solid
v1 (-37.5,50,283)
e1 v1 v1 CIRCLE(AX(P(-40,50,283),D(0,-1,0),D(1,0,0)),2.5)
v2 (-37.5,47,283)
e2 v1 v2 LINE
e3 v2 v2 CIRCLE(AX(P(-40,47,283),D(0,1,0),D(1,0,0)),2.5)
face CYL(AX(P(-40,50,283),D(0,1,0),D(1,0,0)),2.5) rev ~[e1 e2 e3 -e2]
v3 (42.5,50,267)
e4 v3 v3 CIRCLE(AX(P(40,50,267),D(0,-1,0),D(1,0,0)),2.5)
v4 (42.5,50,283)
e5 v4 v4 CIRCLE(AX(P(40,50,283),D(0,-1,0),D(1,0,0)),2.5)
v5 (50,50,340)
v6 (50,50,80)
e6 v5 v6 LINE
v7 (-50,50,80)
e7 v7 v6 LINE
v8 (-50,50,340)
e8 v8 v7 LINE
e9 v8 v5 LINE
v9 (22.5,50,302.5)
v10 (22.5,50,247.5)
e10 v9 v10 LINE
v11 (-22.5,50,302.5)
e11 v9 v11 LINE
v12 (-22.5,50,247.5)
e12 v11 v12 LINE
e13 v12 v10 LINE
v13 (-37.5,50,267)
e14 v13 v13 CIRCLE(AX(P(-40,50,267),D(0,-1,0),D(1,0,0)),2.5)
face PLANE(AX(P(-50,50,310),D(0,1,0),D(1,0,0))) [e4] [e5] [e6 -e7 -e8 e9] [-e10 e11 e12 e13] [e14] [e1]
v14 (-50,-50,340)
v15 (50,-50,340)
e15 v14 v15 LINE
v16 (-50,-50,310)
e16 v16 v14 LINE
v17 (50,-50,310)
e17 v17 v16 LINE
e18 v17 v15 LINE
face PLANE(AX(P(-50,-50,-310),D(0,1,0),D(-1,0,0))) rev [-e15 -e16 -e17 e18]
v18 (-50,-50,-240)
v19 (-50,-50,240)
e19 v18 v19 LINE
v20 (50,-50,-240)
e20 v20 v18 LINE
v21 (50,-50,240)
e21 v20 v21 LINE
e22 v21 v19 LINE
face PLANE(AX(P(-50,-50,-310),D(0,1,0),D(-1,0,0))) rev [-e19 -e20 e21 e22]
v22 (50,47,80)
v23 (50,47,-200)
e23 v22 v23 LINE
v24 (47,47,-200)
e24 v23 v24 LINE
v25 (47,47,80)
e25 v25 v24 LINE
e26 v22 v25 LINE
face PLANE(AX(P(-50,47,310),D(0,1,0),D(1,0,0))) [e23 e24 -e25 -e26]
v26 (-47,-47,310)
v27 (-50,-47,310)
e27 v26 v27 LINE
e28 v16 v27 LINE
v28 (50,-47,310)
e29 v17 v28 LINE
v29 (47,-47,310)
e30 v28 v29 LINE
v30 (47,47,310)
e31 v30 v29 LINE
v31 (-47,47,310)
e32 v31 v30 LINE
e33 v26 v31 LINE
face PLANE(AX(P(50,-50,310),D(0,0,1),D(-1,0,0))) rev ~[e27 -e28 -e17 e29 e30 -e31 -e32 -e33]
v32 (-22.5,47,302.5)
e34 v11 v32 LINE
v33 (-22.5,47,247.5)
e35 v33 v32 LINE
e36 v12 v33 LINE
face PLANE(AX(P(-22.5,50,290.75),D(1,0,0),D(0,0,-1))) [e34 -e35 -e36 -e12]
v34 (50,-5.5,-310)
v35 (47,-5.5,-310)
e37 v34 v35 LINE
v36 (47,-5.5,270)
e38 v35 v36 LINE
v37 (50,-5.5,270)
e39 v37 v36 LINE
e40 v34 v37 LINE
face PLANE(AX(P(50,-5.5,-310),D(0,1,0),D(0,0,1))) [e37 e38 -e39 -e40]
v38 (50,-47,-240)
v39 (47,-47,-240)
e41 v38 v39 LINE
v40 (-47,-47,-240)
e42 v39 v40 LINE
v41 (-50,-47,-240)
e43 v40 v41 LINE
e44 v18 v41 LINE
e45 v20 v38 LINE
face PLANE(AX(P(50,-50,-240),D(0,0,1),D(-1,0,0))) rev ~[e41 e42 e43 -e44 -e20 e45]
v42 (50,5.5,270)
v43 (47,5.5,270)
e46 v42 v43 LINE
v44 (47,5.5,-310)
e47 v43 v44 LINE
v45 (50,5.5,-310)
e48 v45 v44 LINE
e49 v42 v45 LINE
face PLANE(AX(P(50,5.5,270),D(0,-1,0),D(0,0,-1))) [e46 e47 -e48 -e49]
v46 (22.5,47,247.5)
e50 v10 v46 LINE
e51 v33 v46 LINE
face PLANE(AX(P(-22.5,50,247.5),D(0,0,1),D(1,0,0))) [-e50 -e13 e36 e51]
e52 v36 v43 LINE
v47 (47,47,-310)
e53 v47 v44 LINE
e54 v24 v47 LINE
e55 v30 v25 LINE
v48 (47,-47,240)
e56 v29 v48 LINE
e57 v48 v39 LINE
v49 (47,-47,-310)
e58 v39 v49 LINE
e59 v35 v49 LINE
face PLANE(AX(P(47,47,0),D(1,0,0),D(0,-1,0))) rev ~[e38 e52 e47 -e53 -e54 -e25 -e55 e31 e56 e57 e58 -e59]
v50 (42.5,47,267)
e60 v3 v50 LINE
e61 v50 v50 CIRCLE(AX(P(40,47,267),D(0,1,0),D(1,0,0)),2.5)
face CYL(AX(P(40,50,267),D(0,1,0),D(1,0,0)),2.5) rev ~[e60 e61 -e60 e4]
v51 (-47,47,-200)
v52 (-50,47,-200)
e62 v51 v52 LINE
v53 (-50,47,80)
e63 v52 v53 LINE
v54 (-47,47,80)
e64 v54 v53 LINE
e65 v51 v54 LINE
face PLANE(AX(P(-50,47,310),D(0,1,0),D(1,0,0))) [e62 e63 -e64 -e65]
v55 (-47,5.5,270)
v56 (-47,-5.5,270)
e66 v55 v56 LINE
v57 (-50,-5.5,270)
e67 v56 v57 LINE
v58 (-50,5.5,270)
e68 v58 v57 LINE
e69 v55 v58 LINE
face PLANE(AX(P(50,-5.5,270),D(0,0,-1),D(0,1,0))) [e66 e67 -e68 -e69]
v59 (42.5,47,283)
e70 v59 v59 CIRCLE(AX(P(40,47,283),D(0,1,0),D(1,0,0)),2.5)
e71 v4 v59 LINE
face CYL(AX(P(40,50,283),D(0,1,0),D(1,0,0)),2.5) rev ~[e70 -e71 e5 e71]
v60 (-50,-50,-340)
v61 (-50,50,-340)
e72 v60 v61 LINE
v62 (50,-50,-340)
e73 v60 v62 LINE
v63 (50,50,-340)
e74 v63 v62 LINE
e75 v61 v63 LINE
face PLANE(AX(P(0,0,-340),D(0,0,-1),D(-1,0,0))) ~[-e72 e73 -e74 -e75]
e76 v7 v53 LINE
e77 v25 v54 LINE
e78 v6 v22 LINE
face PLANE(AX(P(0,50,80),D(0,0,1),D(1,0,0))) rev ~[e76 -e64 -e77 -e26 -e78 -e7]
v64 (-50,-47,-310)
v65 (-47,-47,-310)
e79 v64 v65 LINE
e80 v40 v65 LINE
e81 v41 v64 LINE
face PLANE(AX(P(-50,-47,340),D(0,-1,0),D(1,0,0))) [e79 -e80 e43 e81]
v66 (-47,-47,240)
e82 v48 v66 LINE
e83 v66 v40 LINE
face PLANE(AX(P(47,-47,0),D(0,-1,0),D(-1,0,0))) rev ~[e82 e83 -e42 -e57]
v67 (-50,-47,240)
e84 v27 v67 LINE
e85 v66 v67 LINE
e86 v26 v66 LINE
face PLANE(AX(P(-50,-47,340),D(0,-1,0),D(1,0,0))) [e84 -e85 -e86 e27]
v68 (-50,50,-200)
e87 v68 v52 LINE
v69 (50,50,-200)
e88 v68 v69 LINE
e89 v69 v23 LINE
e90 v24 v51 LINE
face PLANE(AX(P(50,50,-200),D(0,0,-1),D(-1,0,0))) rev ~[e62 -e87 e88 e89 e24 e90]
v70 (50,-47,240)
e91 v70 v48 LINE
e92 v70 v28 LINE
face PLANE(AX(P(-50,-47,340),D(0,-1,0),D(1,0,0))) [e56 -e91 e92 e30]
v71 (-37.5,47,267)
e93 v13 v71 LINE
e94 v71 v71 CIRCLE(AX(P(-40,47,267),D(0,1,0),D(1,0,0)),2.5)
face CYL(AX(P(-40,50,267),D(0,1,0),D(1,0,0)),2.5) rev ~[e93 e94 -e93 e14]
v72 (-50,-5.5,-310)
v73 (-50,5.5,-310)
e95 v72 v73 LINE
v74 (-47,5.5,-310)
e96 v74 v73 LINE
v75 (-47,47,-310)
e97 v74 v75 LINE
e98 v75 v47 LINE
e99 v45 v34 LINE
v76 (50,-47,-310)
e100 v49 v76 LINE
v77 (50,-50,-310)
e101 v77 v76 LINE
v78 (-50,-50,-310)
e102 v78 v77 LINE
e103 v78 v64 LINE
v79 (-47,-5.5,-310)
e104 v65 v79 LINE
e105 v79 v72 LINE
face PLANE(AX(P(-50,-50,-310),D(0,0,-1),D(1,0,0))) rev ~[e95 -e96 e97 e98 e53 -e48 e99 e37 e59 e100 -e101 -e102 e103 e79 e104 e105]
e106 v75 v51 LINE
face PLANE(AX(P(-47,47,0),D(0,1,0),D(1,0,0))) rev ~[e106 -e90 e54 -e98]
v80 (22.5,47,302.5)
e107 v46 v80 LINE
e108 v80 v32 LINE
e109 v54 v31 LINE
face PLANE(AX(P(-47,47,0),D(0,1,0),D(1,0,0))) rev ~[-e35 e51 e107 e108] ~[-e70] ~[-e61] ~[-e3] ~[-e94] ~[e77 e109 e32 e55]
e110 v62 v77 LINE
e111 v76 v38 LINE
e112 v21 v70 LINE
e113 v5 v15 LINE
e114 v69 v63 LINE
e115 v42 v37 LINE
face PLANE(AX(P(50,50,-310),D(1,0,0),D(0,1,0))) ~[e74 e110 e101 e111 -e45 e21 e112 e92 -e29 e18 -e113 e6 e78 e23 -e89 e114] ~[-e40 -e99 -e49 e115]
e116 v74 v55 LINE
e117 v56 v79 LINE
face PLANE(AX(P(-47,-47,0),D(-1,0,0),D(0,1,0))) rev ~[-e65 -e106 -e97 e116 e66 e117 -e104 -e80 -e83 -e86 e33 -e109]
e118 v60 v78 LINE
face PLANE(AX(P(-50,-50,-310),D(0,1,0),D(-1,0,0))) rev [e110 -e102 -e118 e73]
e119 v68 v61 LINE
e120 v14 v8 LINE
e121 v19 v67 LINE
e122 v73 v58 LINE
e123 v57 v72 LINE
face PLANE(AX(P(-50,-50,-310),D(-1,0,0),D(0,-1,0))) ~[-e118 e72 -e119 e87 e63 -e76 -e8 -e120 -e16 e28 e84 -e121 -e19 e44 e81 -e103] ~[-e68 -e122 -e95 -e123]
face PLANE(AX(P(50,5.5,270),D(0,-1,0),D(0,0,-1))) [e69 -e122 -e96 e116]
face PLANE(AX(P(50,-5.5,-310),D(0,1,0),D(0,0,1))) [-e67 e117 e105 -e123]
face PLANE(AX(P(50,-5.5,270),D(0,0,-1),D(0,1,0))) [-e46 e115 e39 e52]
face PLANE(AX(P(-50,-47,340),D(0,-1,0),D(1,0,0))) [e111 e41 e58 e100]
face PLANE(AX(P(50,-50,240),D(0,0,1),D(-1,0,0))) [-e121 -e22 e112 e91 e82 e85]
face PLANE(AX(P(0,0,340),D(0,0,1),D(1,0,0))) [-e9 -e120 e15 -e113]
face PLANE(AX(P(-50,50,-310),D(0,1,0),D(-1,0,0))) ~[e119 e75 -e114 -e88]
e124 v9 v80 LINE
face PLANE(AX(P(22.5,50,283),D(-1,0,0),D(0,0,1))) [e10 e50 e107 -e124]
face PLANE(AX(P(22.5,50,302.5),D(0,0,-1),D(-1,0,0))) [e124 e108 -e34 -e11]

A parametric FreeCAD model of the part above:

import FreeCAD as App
import Part
import Sketcher
Q = App.Units.Quantity

doc = App.newDocument("Part")
body = doc.addObject("PartDesign::Body", "Body")

sketch1 = doc.addObject("Sketcher::SketchObject", "Sketch")
body.addObject(sketch1)
sketch1.AttachmentSupport = (doc.XY_Plane, [""])
sketch1.MapMode = "FlatFace"
sketch1.addGeometry([
    Part.LineSegment(App.Vector(50, 50, 0), App.Vector(-50, 50, 0)),
    Part.LineSegment(App.Vector(-50, 50, 0), App.Vector(-50, -50, 0)),
    Part.LineSegment(App.Vector(-50, -50, 0), App.Vector(50, -50, 0)),
    Part.LineSegment(App.Vector(50, -50, 0), App.Vector(50, 50, 0)),
    Part.LineSegment(App.Vector(-47, -47, 0), App.Vector(-47, 47, 0)),
    Part.LineSegment(App.Vector(-47, 47, 0), App.Vector(47, 47, 0)),
    Part.LineSegment(App.Vector(47, 47, 0), App.Vector(47, -47, 0)),
    Part.LineSegment(App.Vector(47, -47, 0), App.Vector(-47, -47, 0)),
], False)
sketch1.addConstraint([
    Sketcher.Constraint("Coincident", 0, 2, 1, 1),
    Sketcher.Constraint("Coincident", 1, 2, 2, 1),
    Sketcher.Constraint("Coincident", 2, 2, 3, 1),
    Sketcher.Constraint("Coincident", 3, 2, 0, 1),
    Sketcher.Constraint("Coincident", 4, 2, 5, 1),
    Sketcher.Constraint("Coincident", 5, 2, 6, 1),
    Sketcher.Constraint("Coincident", 6, 2, 7, 1),
    Sketcher.Constraint("Coincident", 7, 2, 4, 1),
    Sketcher.Constraint("Horizontal", 0),
    Sketcher.Constraint("Vertical", 1),
    Sketcher.Constraint("Horizontal", 2),
    Sketcher.Constraint("Vertical", 3),
    Sketcher.Constraint("Vertical", 4),
    Sketcher.Constraint("Horizontal", 5),
    Sketcher.Constraint("Vertical", 6),
    Sketcher.Constraint("Horizontal", 7),
    Sketcher.Constraint("Symmetric", 0, 2, 2, 2, -1, 1),
    Sketcher.Constraint("Symmetric", 4, 2, 6, 2, -1, 1),
    Sketcher.Constraint("Equal", 2, 1),
    Sketcher.Constraint("Equal", 7, 4),
    Sketcher.Constraint("DistanceX", 0, 2, 0, 1, Q("100 mm")),
    Sketcher.Constraint("DistanceX", 5, 1, 5, 2, Q("94 mm")),
])
pad1 = doc.addObject("PartDesign::Pad", "Pad")
body.addObject(pad1)
pad1.Profile = sketch1
pad1.Length = 620
pad1.Midplane = True

sketch2 = doc.addObject("Sketcher::SketchObject", "Sketch001")
body.addObject(sketch2)
sketch2.AttachmentSupport = (doc.YZ_Plane, [""])
sketch2.MapMode = "FlatFace"
sketch2.AttachmentOffset = App.Placement(App.Vector(0, 0, 50), App.Rotation())
sketch2.addGeometry([
    Part.LineSegment(App.Vector(-6, -310, 0), App.Vector(6, -310, 0)),
    Part.LineSegment(App.Vector(6, -310, 0), App.Vector(6, 270, 0)),
    Part.LineSegment(App.Vector(6, 270, 0), App.Vector(-6, 270, 0)),
    Part.LineSegment(App.Vector(-6, 270, 0), App.Vector(-6, -310, 0)),
], False)
sketch2.addConstraint([
    Sketcher.Constraint("Coincident", 0, 2, 1, 1),
    Sketcher.Constraint("Coincident", 1, 2, 2, 1),
    Sketcher.Constraint("Coincident", 2, 2, 3, 1),
    Sketcher.Constraint("Coincident", 3, 2, 0, 1),
    Sketcher.Constraint("Horizontal", 0),
    Sketcher.Constraint("Vertical", 1),
    Sketcher.Constraint("Horizontal", 2),
    Sketcher.Constraint("Vertical", 3),
    Sketcher.Constraint("DistanceX", 0, 1, 0, 2, Q("11 mm")),
    Sketcher.Constraint("DistanceY", 1, 1, 1, 2, Q("580 mm")),
    Sketcher.Constraint("DistanceY", 0, 2, -1, 1, Q("310 mm")),
    Sketcher.Constraint("DistanceX", -1, 1, 0, 2, Q("5.5 mm")),
])
pocket1 = doc.addObject("PartDesign::Pocket", "Pocket")
body.addObject(pocket1)
pocket1.Profile = sketch2
pocket1.Length = 620

sketch3 = doc.addObject("Sketcher::SketchObject", "Sketch002")
body.addObject(sketch3)
sketch3.AttachmentSupport = (doc.XZ_Plane, [""])
sketch3.MapMode = "FlatFace"
sketch3.AttachmentOffset = App.Placement(App.Vector(0, 0, -50), App.Rotation())
sketch3.addGeometry([
    Part.LineSegment(App.Vector(50, -200, 0), App.Vector(-50, -200, 0)),
    Part.LineSegment(App.Vector(-50, -200, 0), App.Vector(-50, 80, 0)),
    Part.LineSegment(App.Vector(-50, 80, 0), App.Vector(50, 80, 0)),
    Part.LineSegment(App.Vector(50, 80, 0), App.Vector(50, -200, 0)),
], False)
sketch3.addConstraint([
    Sketcher.Constraint("Coincident", 0, 2, 1, 1),
    Sketcher.Constraint("Coincident", 1, 2, 2, 1),
    Sketcher.Constraint("Coincident", 2, 2, 3, 1),
    Sketcher.Constraint("Coincident", 3, 2, 0, 1),
    Sketcher.Constraint("Horizontal", 0),
    Sketcher.Constraint("Vertical", 1),
    Sketcher.Constraint("Horizontal", 2),
    Sketcher.Constraint("Vertical", 3),
    Sketcher.Constraint("DistanceY", 0, 2, -1, 1, Q("200 mm")),
    Sketcher.Constraint("DistanceY", -1, 1, 1, 2, Q("80 mm")),
    Sketcher.Constraint("DistanceX", 0, 2, 0, 1, Q("100 mm")),
    Sketcher.Constraint("DistanceX", 0, 2, -1, 1, Q("50 mm")),
])
pocket2 = doc.addObject("PartDesign::Pocket", "Pocket001")
body.addObject(pocket2)
pocket2.Profile = sketch3
pocket2.Length = 3
pocket2.Reversed = True

sketch4 = doc.addObject("Sketcher::SketchObject", "Sketch003")
body.addObject(sketch4)
sketch4.AttachmentSupport = (doc.XY_Plane, [""])
sketch4.MapMode = "FlatFace"
sketch4.AttachmentOffset = App.Placement(App.Vector(0, 0, 310), App.Rotation())
sketch4.addGeometry([
    Part.LineSegment(App.Vector(-50, 50, 0), App.Vector(-50, -50, 0)),
    Part.LineSegment(App.Vector(-50, -50, 0), App.Vector(50, -50, 0)),
    Part.LineSegment(App.Vector(50, -50, 0), App.Vector(50, 50, 0)),
    Part.LineSegment(App.Vector(50, 50, 0), App.Vector(-50, 50, 0)),
], False)
sketch4.addConstraint([
    Sketcher.Constraint("Coincident", 0, 2, 1, 1),
    Sketcher.Constraint("Coincident", 1, 2, 2, 1),
    Sketcher.Constraint("Coincident", 2, 2, 3, 1),
    Sketcher.Constraint("Coincident", 3, 2, 0, 1),
    Sketcher.Constraint("Vertical", 0),
    Sketcher.Constraint("Horizontal", 1),
    Sketcher.Constraint("Vertical", 2),
    Sketcher.Constraint("Horizontal", 3),
    Sketcher.Constraint("Symmetric", 0, 2, 2, 2, -1, 1),
    Sketcher.Constraint("Equal", 3, 0),
    Sketcher.Constraint("DistanceX", 1, 1, 1, 2, Q("100 mm")),
])
pad2 = doc.addObject("PartDesign::Pad", "Pad001")
body.addObject(pad2)
pad2.Profile = sketch4
pad2.Length = 30
doc.recompute()

mirrored = doc.addObject("PartDesign::Mirrored", "Mirrored")
body.addObject(mirrored)
mirrored.Originals = [pad2]
mirrored.MirrorPlane = (doc.XY_Plane, [""])
body.Tip = mirrored

sketch5 = doc.addObject("Sketcher::SketchObject", "Sketch004")
body.addObject(sketch5)
sketch5.AttachmentSupport = (doc.XZ_Plane, [""])
sketch5.MapMode = "FlatFace"
sketch5.AttachmentOffset = App.Placement(App.Vector(0, 0, 50), App.Rotation())
sketch5.addGeometry([
    Part.LineSegment(App.Vector(50, 240, 0), App.Vector(50, 310, 0)),
    Part.LineSegment(App.Vector(50, 310, 0), App.Vector(-50, 310, 0)),
    Part.LineSegment(App.Vector(-50, 310, 0), App.Vector(-50, 240, 0)),
    Part.LineSegment(App.Vector(-50, 240, 0), App.Vector(50, 240, 0)),
    Part.LineSegment(App.Vector(50, -310, 0), App.Vector(50, -240, 0)),
    Part.LineSegment(App.Vector(50, -240, 0), App.Vector(-50, -240, 0)),
    Part.LineSegment(App.Vector(-50, -240, 0), App.Vector(-50, -310, 0)),
    Part.LineSegment(App.Vector(-50, -310, 0), App.Vector(50, -310, 0)),
], False)
sketch5.addConstraint([
    Sketcher.Constraint("Coincident", 0, 2, 1, 1),
    Sketcher.Constraint("Coincident", 1, 2, 2, 1),
    Sketcher.Constraint("Coincident", 2, 2, 3, 1),
    Sketcher.Constraint("Coincident", 3, 2, 0, 1),
    Sketcher.Constraint("Coincident", 4, 2, 5, 1),
    Sketcher.Constraint("Coincident", 5, 2, 6, 1),
    Sketcher.Constraint("Coincident", 6, 2, 7, 1),
    Sketcher.Constraint("Coincident", 7, 2, 4, 1),
    Sketcher.Constraint("Vertical", 0),
    Sketcher.Constraint("Horizontal", 1),
    Sketcher.Constraint("Vertical", 2),
    Sketcher.Constraint("Horizontal", 3),
    Sketcher.Constraint("Vertical", 4),
    Sketcher.Constraint("Horizontal", 5),
    Sketcher.Constraint("Vertical", 6),
    Sketcher.Constraint("Horizontal", 7),
    Sketcher.Constraint("Symmetric", 2, 2, 4, 2, -1, 1),
    Sketcher.Constraint("Symmetric", 0, 2, 6, 2, -1, 1),
    Sketcher.Constraint("Vertical", 3, 2, 4, 2),
    Sketcher.Constraint("DistanceX", 1, 2, 1, 1, Q("100 mm")),
    Sketcher.Constraint("DistanceY", 0, 1, 0, 2, Q("70 mm")),
    Sketcher.Constraint("DistanceY", 6, 2, 1, 2, Q("620 mm")),
])
pocket3 = doc.addObject("PartDesign::Pocket", "Pocket002")
body.addObject(pocket3)
pocket3.Profile = sketch5
pocket3.Length = 3

sketch6 = doc.addObject("Sketcher::SketchObject", "Sketch005")
body.addObject(sketch6)
sketch6.AttachmentSupport = (doc.XZ_Plane, [""])
sketch6.MapMode = "FlatFace"
sketch6.AttachmentOffset = App.Placement(App.Vector(0, 0, -50), App.Rotation())
sketch6.addGeometry([
    Part.LineSegment(App.Vector(-22.5, 302.5, 0), App.Vector(22.5, 302.5, 0)),
    Part.LineSegment(App.Vector(22.5, 302.5, 0), App.Vector(22.5, 247.5, 0)),
    Part.LineSegment(App.Vector(22.5, 247.5, 0), App.Vector(-22.5, 247.5, 0)),
    Part.LineSegment(App.Vector(-22.5, 247.5, 0), App.Vector(-22.5, 302.5, 0)),
    Part.Circle(App.Vector(-40, 283, 0), App.Vector(0, 0, 1), 2.5),
    Part.Circle(App.Vector(40, 283, 0), App.Vector(0, 0, 1), 2.5),
    Part.Circle(App.Vector(-40, 267, 0), App.Vector(0, 0, 1), 2.5),
    Part.Circle(App.Vector(40, 267, 0), App.Vector(0, 0, 1), 2.5),
], False)
sketch6.addConstraint([
    Sketcher.Constraint("Coincident", 0, 2, 1, 1),
    Sketcher.Constraint("Coincident", 1, 2, 2, 1),
    Sketcher.Constraint("Coincident", 2, 2, 3, 1),
    Sketcher.Constraint("Coincident", 3, 2, 0, 1),
    Sketcher.Constraint("Horizontal", 0),
    Sketcher.Constraint("Vertical", 1),
    Sketcher.Constraint("Horizontal", 2),
    Sketcher.Constraint("Vertical", 3),
    Sketcher.Constraint("Equal", 4, 5),
    Sketcher.Constraint("Equal", 5, 6),
    Sketcher.Constraint("Equal", 6, 7),
    Sketcher.Constraint("Symmetric", 4, 3, 5, 3, -2),
    Sketcher.Constraint("Symmetric", 6, 3, 7, 3, -2),
    Sketcher.Constraint("Vertical", 4, 3, 6, 3),
    Sketcher.Constraint("Diameter", 4, Q("5 mm")),
    Sketcher.Constraint("DistanceX", 0, 1, 0, 2, Q("45 mm")),
    Sketcher.Constraint("DistanceY", 1, 2, 1, 1, Q("55 mm")),
    Sketcher.Constraint("DistanceX", 4, 3, 5, 3, Q("80 mm")),
    Sketcher.Constraint("DistanceY", 6, 3, 4, 3, Q("16 mm")),
    Sketcher.Constraint("DistanceY", -1, 1, 4, 3, Q("283 mm")),
    Sketcher.Constraint("DistanceX", -1, 1, 0, 2, Q("22.5 mm")),
    Sketcher.Constraint("DistanceY", -1, 1, 0, 2, Q("302.5 mm")),
])
pocket4 = doc.addObject("PartDesign::Pocket", "Pocket003")
body.addObject(pocket4)
pocket4.Profile = sketch6
pocket4.Length = 3
pocket4.Reversed = True

doc.recompute()
